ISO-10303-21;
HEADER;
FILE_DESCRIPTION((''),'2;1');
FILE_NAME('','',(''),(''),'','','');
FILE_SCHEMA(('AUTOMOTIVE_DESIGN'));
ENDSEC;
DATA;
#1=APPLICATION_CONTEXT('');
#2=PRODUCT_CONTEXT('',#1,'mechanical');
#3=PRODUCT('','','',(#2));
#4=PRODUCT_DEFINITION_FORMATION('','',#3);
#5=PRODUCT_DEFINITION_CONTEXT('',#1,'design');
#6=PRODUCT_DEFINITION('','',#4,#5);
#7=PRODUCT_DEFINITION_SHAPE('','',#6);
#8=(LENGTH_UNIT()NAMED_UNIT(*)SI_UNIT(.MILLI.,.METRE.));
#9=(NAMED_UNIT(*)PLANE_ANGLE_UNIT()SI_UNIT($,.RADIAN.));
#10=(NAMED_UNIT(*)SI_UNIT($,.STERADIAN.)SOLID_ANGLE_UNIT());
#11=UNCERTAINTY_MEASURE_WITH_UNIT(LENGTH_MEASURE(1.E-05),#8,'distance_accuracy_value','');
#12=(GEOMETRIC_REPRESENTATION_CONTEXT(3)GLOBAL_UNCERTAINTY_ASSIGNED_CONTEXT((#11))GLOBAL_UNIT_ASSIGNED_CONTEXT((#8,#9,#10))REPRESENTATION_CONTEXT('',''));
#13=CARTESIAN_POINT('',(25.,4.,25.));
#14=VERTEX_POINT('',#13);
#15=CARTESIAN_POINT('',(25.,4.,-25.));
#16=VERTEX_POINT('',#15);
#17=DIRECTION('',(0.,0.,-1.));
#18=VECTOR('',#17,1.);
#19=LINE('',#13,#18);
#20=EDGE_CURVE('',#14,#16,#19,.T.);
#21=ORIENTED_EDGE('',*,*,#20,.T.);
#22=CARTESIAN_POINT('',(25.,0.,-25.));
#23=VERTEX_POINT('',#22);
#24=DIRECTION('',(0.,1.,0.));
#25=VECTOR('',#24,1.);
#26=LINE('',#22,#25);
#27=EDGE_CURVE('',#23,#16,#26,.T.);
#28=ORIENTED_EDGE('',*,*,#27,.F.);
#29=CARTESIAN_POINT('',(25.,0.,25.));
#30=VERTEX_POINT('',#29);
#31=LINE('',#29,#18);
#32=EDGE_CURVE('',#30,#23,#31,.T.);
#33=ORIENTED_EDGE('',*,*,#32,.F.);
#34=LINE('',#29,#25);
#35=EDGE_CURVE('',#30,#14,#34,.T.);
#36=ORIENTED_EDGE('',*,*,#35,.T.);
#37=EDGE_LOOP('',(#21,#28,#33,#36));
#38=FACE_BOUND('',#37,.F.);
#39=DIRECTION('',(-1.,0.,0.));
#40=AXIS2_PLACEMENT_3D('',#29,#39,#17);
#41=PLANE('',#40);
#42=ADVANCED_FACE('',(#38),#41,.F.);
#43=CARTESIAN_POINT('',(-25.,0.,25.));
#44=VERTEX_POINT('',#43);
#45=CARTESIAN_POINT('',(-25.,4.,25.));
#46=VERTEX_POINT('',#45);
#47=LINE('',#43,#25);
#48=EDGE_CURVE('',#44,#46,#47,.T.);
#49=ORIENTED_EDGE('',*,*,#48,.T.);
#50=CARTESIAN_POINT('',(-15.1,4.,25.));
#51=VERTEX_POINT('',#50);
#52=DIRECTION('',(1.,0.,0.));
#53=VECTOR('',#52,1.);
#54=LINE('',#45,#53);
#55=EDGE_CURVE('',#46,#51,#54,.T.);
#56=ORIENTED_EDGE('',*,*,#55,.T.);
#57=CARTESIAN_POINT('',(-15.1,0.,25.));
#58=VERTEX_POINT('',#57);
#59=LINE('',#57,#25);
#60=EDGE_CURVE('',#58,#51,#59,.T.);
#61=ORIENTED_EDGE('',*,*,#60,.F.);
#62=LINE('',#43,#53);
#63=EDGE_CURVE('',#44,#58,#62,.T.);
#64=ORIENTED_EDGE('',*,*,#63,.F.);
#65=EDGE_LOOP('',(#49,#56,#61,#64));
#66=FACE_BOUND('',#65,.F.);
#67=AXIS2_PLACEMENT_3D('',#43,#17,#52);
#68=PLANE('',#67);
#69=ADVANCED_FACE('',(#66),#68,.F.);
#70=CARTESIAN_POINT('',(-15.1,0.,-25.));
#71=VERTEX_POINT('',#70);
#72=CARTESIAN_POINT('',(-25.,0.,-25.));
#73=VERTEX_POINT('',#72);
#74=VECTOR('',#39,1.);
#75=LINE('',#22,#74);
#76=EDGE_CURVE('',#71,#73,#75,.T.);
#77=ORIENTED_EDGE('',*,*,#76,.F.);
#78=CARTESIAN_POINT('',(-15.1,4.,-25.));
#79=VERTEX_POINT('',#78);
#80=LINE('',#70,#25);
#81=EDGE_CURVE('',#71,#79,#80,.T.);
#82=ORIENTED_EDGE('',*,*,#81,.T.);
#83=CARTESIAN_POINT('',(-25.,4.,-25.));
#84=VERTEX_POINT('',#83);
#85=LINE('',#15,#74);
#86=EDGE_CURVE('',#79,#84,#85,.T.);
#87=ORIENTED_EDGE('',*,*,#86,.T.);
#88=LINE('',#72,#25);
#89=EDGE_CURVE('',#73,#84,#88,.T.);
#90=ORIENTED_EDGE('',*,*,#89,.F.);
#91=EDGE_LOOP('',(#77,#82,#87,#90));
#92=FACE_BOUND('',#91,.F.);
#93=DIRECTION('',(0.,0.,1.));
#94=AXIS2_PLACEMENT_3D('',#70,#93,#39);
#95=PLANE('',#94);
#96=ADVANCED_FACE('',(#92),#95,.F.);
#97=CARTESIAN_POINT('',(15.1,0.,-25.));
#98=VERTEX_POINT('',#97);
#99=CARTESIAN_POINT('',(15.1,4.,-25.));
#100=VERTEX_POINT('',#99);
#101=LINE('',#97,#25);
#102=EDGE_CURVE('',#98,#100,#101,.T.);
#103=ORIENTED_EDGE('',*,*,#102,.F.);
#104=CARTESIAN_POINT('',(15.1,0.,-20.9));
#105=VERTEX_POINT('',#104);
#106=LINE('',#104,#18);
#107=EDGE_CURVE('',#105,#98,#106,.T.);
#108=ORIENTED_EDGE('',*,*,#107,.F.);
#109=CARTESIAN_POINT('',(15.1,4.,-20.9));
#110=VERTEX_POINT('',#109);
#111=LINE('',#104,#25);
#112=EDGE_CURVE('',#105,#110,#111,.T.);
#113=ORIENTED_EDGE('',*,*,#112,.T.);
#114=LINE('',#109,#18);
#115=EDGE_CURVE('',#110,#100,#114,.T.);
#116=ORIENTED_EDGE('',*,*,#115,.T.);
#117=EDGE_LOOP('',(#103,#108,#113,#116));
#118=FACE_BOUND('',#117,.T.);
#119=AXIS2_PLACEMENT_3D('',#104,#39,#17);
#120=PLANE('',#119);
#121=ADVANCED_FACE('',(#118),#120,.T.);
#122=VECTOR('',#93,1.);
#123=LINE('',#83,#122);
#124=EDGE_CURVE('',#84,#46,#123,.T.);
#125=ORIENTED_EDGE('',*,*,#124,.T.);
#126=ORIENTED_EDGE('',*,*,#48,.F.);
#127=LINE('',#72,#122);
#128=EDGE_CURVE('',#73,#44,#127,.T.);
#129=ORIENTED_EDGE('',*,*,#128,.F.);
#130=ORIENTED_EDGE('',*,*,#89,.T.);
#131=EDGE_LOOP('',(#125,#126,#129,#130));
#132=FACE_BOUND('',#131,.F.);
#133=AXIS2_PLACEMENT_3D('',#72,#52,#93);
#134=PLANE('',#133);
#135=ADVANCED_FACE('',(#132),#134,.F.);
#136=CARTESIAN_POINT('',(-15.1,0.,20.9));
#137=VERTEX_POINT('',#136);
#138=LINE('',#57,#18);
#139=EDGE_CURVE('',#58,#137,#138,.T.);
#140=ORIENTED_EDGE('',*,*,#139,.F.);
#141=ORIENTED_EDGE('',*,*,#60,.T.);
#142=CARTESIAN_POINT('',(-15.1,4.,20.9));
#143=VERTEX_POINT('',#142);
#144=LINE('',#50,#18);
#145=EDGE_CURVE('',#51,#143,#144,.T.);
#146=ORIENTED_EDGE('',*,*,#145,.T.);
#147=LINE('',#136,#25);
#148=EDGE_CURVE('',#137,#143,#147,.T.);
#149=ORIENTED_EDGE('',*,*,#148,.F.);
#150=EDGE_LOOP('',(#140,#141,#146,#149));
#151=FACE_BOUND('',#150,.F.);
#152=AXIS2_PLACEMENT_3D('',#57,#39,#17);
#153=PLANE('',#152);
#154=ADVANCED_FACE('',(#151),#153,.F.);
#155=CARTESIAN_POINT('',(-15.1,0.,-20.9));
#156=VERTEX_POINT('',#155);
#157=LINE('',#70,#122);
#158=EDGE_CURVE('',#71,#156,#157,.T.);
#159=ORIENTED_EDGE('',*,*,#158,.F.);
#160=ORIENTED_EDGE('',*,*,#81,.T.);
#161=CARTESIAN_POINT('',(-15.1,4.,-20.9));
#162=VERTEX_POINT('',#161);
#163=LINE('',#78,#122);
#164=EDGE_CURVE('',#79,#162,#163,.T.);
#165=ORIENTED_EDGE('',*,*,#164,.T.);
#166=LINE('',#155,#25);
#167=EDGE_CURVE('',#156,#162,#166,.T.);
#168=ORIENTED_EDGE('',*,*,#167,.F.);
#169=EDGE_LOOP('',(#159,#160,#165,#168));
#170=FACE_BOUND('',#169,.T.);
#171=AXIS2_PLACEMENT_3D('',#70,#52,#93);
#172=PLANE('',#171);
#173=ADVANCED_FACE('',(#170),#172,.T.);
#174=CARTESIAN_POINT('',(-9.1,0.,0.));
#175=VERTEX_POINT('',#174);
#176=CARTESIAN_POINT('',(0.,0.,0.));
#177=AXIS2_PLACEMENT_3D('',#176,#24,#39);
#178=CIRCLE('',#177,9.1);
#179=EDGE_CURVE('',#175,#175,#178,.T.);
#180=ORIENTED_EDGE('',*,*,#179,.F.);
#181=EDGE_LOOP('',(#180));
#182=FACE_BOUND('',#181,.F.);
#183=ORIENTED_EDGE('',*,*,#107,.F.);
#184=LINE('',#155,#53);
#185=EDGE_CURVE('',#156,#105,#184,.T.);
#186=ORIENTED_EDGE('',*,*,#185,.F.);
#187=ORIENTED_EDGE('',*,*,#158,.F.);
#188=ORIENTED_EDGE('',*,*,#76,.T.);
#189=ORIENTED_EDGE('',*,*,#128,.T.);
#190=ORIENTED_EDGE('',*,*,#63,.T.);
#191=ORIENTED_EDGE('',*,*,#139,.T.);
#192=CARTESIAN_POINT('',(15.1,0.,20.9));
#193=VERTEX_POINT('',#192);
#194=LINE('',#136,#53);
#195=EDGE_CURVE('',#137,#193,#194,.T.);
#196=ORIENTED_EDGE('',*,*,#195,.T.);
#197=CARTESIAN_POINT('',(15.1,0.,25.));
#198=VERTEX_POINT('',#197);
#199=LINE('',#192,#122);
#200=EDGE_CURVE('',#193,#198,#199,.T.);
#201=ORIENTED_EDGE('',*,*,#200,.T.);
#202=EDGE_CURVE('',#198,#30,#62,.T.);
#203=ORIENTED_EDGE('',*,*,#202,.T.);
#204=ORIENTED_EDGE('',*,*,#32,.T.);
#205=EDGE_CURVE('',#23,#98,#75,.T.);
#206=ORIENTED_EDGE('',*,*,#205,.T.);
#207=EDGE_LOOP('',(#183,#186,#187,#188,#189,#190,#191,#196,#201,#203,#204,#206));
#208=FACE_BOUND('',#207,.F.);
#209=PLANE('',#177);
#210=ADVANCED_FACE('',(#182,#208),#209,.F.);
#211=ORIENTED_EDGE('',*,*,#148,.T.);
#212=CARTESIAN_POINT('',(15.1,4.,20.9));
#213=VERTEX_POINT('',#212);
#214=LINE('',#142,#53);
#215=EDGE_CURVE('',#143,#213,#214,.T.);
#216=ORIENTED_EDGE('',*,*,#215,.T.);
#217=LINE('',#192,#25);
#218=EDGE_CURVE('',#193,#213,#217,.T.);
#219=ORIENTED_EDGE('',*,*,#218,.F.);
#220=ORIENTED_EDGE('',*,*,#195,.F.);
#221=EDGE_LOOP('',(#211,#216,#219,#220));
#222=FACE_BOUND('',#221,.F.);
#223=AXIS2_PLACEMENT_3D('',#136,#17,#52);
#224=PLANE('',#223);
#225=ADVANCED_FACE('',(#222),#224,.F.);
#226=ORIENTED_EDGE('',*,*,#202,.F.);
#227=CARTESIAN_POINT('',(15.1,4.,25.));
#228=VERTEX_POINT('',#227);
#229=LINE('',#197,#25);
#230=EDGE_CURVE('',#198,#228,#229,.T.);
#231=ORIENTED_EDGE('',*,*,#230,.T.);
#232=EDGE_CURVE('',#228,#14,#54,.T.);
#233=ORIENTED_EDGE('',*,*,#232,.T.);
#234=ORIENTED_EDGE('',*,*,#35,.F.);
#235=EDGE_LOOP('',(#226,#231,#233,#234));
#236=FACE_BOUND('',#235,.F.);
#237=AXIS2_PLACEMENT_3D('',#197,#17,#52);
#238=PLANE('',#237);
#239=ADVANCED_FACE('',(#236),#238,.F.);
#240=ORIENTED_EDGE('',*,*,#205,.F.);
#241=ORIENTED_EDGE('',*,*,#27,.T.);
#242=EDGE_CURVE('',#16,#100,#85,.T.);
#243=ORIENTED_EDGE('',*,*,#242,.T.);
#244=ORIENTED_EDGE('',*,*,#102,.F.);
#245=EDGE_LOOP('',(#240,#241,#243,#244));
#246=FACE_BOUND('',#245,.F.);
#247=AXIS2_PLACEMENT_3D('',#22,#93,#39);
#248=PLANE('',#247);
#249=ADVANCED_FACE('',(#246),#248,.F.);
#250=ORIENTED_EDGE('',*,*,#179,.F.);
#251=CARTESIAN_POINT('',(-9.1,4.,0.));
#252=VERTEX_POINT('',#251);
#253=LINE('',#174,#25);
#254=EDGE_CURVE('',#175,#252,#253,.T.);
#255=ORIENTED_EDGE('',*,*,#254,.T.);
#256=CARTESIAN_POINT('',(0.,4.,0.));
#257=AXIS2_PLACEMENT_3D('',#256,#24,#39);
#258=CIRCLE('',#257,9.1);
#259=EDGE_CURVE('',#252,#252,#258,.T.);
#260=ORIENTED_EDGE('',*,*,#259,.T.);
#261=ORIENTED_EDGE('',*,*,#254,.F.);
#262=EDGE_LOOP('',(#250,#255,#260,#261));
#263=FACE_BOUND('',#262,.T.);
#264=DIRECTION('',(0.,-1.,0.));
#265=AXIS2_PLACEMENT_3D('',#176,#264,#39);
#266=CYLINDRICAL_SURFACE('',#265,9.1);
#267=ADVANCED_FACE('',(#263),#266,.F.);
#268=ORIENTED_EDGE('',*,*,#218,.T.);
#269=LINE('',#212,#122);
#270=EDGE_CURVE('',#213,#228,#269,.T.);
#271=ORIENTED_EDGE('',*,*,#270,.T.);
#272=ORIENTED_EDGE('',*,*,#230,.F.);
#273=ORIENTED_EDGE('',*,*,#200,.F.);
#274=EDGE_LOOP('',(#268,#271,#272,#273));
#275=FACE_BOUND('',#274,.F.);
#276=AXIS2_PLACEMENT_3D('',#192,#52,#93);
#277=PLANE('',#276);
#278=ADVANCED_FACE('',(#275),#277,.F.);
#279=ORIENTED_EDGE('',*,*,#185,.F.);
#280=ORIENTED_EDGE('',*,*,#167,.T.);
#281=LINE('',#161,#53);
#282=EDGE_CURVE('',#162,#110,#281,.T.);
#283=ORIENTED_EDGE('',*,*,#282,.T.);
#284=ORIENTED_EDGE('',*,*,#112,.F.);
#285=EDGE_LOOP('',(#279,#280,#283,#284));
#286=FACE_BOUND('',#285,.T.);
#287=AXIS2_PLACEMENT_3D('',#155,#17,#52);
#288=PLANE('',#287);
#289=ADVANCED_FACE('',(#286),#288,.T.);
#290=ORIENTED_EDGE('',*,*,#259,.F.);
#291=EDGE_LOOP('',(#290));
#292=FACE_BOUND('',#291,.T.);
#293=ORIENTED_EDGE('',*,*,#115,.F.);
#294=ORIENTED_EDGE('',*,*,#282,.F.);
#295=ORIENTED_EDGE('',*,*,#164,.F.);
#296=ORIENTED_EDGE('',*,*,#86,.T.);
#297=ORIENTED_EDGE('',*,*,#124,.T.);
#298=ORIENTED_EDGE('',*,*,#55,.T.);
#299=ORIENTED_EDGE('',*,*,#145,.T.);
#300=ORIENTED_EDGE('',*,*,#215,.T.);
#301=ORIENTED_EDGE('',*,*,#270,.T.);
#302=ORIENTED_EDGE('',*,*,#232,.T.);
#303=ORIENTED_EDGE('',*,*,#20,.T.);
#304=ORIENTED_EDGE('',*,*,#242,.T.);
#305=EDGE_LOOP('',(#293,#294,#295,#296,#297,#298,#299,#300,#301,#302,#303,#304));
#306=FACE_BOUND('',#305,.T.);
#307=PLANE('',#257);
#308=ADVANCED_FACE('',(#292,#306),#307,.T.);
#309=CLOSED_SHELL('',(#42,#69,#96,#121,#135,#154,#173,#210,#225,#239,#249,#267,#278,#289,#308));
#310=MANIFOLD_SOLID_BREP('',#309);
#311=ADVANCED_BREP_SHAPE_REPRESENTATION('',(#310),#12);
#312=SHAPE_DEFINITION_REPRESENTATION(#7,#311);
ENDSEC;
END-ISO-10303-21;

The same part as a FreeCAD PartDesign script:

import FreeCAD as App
import Part
import Sketcher

V = App.Vector


def add_polygon(sketch, points):
    """Adds a closed chain of lines whose ends are joined by coincident constraints."""
    first, n = sketch.GeometryCount, len(points)
    for a, b in zip(points, points[1:] + points[:1]):
        sketch.addGeometry(Part.LineSegment(App.Vector(*a, 0), App.Vector(*b, 0)), False)
    for i in range(n):
        sketch.addConstraint(Sketcher.Constraint("Coincident", first + i, 2, first + (i + 1) % n, 1))

doc = App.newDocument("Part")
params = doc.addObject("Spreadsheet::Sheet", "Params")
for row, (alias, value) in enumerate([
    ("sketch1_diameter", "18.2 mm"),
    ("sketch1_width", "9.9 mm"),
    ("sketch1_width2", "30.2 mm"),
    ("sketch1_height", "4.1 mm"),
    ("pad1_length", "4 mm"),
], start=1):
    params.set(f"A{row}", alias)
    params.set(f"B{row}", "=" + value)
    params.setAlias(f"B{row}", alias)

body = doc.addObject("PartDesign::Body", "Body")

# Sketch on XZ plane
sketch1 = body.newObject("Sketcher::SketchObject", "Sketch")
sketch1.AttachmentSupport = (doc.getObject("XZ_Plane"), [""])
sketch1.MapMode = "FlatFace"
add_polygon(sketch1, [(-25, -25), (-25, 25), (-15.1, 25), (-15.1, 20.9), (15.1, 20.9), (15.1, 25), (25, 25), (25, -25), (15.1, -25), (15.1, -20.9), (-15.1, -20.9), (-15.1, -25)])  # lines 0-11
sketch1.addGeometry(Part.Circle(V(0, 0, 0), V(0, 0, 1), 9.1), False)  # 12
sketch1.addConstraint(Sketcher.Constraint("Vertical", 0))
sketch1.addConstraint(Sketcher.Constraint("Horizontal", 1))
sketch1.addConstraint(Sketcher.Constraint("Vertical", 2))
sketch1.addConstraint(Sketcher.Constraint("Horizontal", 3))
sketch1.addConstraint(Sketcher.Constraint("Vertical", 4))
sketch1.addConstraint(Sketcher.Constraint("Horizontal", 5))
sketch1.addConstraint(Sketcher.Constraint("Vertical", 6))
sketch1.addConstraint(Sketcher.Constraint("Horizontal", 7))
sketch1.addConstraint(Sketcher.Constraint("Vertical", 8))
sketch1.addConstraint(Sketcher.Constraint("Horizontal", 9))
sketch1.addConstraint(Sketcher.Constraint("Vertical", 10))
sketch1.addConstraint(Sketcher.Constraint("Horizontal", 11))
sketch1.addConstraint(Sketcher.Constraint("Coincident", 12, 3, -1, 1))
sketch1.addConstraint(Sketcher.Constraint("Symmetric", 0, 2, 6, 2, -1, 1))
sketch1.addConstraint(Sketcher.Constraint("Symmetric", 2, 2, 8, 2, -1, 1))
sketch1.addConstraint(Sketcher.Constraint("Symmetric", 4, 2, 10, 2, -1, 1))
sketch1.addConstraint(Sketcher.Constraint("Symmetric", 1, 2, 4, 2, -2))
sketch1.addConstraint(Sketcher.Constraint("Diameter", 12, 18.2))
sketch1.addConstraint(Sketcher.Constraint("DistanceX", 1, 1, 1, 2, 9.9))
sketch1.addConstraint(Sketcher.Constraint("DistanceX", 3, 1, 3, 2, 30.2))
sketch1.addConstraint(Sketcher.Constraint("DistanceY", 2, 2, 2, 1, 4.1))
sketch1.addConstraint(Sketcher.Constraint("DistanceY", -1, 1, 0, 2, 25.0))
sketch1.setExpression("Constraints[29]", "Params.sketch1_diameter")
sketch1.setExpression("Constraints[30]", "Params.sketch1_width")
sketch1.setExpression("Constraints[31]", "Params.sketch1_width2")
sketch1.setExpression("Constraints[32]", "Params.sketch1_height")
pad1 = body.newObject("PartDesign::Pad", "Pad")
pad1.Profile = sketch1
pad1.setExpression("Length", "Params.pad1_length")
pad1.Reversed = True

doc.recompute()
